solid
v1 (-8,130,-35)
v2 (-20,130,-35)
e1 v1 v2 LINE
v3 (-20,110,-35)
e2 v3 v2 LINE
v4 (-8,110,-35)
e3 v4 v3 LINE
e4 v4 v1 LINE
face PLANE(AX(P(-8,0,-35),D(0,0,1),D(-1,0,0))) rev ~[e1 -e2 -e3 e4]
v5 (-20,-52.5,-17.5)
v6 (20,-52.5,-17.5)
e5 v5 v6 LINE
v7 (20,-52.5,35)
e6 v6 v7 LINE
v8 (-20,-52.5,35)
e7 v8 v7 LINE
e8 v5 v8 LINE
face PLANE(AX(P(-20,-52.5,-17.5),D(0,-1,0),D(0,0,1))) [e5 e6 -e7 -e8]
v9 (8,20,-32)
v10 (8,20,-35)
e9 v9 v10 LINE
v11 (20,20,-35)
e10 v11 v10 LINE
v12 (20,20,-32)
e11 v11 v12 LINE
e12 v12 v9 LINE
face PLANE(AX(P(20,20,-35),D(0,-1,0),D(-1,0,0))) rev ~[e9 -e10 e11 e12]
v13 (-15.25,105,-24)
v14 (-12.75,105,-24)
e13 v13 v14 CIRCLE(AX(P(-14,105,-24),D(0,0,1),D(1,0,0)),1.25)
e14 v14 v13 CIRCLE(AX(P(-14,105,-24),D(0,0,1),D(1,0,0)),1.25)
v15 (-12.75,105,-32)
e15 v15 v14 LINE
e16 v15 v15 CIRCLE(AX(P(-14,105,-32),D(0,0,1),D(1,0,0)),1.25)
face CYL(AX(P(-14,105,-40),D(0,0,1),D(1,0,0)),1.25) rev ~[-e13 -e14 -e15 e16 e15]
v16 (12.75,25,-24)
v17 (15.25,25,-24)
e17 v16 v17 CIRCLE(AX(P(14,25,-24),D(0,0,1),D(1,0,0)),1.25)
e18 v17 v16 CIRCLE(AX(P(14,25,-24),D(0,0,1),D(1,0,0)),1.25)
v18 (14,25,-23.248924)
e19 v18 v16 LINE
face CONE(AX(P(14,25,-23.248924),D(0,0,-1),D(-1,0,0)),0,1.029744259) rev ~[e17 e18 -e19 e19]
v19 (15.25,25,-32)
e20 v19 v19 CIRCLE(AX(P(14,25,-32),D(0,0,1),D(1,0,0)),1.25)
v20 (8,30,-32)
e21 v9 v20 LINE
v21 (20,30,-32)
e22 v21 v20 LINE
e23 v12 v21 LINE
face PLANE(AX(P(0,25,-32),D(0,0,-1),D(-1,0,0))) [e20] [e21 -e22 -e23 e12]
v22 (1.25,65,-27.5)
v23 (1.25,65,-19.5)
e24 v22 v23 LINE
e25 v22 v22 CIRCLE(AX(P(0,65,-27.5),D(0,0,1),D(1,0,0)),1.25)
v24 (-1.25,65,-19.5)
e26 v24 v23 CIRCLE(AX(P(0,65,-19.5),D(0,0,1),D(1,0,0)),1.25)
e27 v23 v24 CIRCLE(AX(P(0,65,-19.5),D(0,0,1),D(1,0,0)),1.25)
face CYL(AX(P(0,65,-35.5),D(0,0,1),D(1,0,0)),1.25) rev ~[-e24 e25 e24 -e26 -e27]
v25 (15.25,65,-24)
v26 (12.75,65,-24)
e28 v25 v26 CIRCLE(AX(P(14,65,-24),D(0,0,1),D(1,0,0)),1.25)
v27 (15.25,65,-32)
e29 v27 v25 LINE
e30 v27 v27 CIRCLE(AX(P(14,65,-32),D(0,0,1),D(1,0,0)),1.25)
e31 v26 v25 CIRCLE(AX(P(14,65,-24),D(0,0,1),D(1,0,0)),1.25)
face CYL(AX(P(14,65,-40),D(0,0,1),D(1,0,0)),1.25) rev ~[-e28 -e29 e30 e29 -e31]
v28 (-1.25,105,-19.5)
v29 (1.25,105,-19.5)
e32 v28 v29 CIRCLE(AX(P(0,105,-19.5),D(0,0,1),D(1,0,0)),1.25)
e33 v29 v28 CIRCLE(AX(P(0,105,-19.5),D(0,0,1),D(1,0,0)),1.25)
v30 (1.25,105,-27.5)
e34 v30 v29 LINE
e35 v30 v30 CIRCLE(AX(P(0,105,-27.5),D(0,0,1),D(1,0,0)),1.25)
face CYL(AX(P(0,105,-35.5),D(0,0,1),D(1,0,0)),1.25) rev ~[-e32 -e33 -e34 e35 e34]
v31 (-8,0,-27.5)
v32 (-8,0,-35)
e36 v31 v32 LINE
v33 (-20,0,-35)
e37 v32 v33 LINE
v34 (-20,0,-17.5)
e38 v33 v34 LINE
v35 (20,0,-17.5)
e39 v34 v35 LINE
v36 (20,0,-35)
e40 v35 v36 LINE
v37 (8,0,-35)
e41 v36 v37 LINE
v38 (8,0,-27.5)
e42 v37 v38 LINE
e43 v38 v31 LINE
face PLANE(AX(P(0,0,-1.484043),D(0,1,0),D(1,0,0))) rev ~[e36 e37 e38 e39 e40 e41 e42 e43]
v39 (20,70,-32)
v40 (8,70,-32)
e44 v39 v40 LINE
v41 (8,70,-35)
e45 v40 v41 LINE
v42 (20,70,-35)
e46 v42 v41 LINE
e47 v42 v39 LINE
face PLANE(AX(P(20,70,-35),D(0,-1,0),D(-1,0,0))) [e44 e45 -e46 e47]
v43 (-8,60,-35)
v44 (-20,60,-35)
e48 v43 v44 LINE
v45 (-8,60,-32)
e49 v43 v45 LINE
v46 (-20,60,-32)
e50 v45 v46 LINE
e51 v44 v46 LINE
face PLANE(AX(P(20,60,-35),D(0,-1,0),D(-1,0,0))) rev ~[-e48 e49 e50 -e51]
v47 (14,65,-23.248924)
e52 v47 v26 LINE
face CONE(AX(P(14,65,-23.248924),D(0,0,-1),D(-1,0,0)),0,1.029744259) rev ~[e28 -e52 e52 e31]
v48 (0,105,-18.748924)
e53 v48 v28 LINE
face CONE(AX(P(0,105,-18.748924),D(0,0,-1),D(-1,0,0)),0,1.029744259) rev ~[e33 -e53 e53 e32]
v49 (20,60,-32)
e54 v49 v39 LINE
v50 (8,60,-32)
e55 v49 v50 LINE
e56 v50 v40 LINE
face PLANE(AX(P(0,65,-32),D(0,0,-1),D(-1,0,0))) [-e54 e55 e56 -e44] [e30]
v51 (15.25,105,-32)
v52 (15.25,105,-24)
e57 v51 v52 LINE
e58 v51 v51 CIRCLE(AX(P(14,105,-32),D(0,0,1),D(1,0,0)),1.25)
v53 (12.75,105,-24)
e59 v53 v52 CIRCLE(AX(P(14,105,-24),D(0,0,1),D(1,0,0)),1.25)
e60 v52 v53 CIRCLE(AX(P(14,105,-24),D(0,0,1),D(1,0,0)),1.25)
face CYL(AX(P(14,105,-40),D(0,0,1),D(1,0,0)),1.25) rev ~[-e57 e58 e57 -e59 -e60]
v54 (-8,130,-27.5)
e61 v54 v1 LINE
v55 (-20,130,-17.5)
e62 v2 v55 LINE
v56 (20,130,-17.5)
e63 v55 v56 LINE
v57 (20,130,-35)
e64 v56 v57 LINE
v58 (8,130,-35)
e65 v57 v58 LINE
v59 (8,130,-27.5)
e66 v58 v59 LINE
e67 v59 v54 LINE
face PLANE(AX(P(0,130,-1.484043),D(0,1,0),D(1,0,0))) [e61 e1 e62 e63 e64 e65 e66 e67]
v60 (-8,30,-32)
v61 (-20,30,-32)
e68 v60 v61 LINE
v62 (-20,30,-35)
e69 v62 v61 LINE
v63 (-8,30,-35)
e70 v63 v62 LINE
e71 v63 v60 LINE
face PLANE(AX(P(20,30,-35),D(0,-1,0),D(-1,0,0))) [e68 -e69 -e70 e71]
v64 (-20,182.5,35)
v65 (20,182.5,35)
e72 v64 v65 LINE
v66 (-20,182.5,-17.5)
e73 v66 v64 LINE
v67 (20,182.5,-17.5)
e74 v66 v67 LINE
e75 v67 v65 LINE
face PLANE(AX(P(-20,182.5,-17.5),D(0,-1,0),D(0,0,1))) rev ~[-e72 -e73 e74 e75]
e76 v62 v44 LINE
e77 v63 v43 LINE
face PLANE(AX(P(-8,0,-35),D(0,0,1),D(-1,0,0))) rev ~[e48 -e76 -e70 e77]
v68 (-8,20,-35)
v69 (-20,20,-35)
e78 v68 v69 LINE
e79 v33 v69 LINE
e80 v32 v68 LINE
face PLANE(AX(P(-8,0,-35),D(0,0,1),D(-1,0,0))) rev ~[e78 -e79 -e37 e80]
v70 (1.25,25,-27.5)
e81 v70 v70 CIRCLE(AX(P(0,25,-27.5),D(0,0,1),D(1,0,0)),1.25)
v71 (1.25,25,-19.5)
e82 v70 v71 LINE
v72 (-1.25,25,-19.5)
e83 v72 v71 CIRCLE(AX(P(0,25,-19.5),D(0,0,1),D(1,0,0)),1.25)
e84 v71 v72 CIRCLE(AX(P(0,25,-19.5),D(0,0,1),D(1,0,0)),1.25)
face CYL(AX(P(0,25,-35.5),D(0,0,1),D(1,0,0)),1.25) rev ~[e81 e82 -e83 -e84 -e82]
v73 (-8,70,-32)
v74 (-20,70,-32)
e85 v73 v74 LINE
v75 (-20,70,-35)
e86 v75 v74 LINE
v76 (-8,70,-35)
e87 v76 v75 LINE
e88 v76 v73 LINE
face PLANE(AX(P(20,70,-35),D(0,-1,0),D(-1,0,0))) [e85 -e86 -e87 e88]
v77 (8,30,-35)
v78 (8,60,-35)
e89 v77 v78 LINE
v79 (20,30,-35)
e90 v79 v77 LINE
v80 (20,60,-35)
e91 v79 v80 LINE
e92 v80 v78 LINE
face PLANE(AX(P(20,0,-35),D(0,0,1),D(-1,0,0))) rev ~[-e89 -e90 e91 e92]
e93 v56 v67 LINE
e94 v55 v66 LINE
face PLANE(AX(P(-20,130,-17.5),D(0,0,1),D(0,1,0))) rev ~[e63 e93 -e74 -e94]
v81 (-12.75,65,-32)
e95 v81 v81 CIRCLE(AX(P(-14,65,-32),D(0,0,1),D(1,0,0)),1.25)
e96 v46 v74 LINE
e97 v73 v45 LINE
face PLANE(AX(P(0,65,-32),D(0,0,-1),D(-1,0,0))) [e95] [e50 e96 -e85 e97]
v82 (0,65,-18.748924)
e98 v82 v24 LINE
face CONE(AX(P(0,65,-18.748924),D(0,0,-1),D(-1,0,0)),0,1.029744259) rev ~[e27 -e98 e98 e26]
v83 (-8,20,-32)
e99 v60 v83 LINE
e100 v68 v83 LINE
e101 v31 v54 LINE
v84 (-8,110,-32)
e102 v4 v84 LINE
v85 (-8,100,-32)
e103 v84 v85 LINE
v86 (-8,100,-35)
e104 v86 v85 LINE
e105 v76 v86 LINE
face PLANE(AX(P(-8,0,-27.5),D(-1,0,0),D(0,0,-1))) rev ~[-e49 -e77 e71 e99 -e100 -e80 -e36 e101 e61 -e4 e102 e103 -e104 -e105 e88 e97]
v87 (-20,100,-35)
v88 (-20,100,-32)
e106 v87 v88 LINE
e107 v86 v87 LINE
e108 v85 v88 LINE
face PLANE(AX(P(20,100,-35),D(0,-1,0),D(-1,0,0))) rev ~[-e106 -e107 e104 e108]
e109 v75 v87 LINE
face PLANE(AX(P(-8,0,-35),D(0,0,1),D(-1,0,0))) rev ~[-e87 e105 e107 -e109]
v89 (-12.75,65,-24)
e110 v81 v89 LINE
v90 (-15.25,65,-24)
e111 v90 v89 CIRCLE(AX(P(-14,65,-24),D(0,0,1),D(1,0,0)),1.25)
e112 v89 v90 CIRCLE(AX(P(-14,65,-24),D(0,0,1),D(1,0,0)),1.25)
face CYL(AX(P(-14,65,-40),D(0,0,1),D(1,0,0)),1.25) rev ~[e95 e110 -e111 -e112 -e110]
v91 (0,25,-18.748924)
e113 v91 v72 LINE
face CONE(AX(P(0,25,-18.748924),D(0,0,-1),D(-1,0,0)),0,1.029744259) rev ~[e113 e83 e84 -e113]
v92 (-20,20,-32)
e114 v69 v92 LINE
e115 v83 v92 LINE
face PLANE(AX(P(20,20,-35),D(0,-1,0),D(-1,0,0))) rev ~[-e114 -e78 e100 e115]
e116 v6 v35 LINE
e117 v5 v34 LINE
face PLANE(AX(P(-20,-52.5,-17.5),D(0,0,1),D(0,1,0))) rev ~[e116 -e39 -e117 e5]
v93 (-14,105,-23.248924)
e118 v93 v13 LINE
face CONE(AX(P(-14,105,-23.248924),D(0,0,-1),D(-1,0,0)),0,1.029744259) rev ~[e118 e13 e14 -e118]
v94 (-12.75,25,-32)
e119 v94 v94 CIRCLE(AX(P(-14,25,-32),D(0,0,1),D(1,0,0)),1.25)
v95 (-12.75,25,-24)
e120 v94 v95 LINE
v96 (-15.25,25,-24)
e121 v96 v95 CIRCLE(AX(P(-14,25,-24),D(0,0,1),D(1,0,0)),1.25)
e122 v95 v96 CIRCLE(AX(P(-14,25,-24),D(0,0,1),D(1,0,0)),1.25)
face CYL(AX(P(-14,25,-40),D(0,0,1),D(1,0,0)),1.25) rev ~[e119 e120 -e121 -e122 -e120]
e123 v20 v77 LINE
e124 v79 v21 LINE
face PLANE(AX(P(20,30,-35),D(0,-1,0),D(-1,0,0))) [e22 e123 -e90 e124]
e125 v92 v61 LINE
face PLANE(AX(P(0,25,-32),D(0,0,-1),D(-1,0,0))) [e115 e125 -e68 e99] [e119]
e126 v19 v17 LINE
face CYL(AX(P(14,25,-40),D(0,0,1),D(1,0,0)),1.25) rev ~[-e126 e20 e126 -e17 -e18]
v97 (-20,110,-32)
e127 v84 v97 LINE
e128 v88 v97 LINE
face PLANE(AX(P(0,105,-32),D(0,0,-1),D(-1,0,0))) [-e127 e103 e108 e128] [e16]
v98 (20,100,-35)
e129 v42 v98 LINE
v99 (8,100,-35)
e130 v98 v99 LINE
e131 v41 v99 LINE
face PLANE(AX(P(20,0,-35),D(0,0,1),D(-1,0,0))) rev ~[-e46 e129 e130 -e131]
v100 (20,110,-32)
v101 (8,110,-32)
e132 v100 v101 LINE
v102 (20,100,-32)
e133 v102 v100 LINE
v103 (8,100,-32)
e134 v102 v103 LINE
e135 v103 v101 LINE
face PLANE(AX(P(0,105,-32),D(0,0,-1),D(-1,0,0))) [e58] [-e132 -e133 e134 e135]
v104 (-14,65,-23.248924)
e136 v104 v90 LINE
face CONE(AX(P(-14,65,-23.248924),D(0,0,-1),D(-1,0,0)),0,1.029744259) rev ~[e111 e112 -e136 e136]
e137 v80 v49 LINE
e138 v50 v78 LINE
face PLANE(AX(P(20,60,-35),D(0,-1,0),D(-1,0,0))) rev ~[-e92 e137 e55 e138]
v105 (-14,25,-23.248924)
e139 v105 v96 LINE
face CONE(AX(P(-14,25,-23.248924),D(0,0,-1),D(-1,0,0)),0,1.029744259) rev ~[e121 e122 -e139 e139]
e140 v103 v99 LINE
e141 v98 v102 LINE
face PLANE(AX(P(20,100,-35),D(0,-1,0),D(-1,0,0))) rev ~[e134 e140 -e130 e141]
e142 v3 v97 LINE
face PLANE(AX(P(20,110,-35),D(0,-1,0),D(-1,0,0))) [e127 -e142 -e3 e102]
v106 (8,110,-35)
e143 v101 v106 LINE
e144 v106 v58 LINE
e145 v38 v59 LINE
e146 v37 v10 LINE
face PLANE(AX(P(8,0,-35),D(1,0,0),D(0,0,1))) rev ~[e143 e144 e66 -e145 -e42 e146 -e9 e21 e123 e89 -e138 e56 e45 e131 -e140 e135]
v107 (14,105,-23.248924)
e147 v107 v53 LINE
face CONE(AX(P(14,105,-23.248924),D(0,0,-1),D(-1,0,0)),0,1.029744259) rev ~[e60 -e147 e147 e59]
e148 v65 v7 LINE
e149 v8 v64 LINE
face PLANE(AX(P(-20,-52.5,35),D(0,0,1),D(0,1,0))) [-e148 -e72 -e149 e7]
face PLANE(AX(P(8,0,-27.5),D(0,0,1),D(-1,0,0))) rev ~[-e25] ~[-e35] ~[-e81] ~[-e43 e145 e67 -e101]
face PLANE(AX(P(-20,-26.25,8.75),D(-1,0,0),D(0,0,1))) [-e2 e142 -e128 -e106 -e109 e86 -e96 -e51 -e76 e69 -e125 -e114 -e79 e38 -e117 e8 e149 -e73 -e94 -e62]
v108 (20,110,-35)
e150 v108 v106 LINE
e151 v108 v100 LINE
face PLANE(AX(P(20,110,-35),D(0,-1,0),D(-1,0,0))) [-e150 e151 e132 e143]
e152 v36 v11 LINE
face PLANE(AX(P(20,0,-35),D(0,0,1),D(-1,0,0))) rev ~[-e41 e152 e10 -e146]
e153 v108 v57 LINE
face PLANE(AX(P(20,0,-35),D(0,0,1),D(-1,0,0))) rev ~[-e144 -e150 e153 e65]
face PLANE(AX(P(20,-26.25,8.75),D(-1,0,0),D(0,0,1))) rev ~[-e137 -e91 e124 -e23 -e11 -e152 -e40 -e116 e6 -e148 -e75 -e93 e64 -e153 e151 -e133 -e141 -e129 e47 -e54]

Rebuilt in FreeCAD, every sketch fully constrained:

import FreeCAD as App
import Part
import Sketcher

V = App.Vector

doc = App.newDocument("Part")
body = doc.addObject("PartDesign::Body", "Body")

sketch1 = body.newObject("Sketcher::SketchObject", "Sketch")
sketch1.AttachmentSupport = (doc.getObject("XZ_Plane"), [""])
sketch1.MapMode = "FlatFace"
sketch1.addGeometry([
    Part.LineSegment(V(-20, -35, 0), V(-20, 35, 0)),
    Part.LineSegment(V(-20, 35, 0), V(20, 35, 0)),
    Part.LineSegment(V(20, 35, 0), V(20, -35, 0)),
    Part.LineSegment(V(20, -35, 0), V(8, -35, 0)),
    Part.LineSegment(V(8, -35, 0), V(8, -28, 0)),
    Part.LineSegment(V(8, -28, 0), V(-8, -28, 0)),
    Part.LineSegment(V(-8, -28, 0), V(-8, -35, 0)),
    Part.LineSegment(V(-8, -35, 0), V(-20, -35, 0)),
], False)
sketch1.addConstraint([
    Sketcher.Constraint("Coincident", 0, 2, 1, 1),
    Sketcher.Constraint("Coincident", 1, 2, 2, 1),
    Sketcher.Constraint("Coincident", 2, 2, 3, 1),
    Sketcher.Constraint("Coincident", 3, 2, 4, 1),
    Sketcher.Constraint("Coincident", 4, 2, 5, 1),
    Sketcher.Constraint("Coincident", 5, 2, 6, 1),
    Sketcher.Constraint("Coincident", 6, 2, 7, 1),
    Sketcher.Constraint("Coincident", 7, 2, 0, 1),
    Sketcher.Constraint("Vertical", 0),
    Sketcher.Constraint("Horizontal", 1),
    Sketcher.Constraint("Vertical", 2),
    Sketcher.Constraint("Horizontal", 3),
    Sketcher.Constraint("Vertical", 4),
    Sketcher.Constraint("Horizontal", 5),
    Sketcher.Constraint("Vertical", 6),
    Sketcher.Constraint("Horizontal", 7),
    Sketcher.Constraint("Symmetric", 0, 2, 2, 2, -1, 1),
    Sketcher.Constraint("Symmetric", 3, 2, 6, 2, -2),
    Sketcher.Constraint("DistanceX", 1, 1, 1, 2, 40.0),
    Sketcher.Constraint("DistanceX", 3, 2, 3, 1, 12.0),
    Sketcher.Constraint("DistanceY", 0, 1, 0, 2, 70.0),
    Sketcher.Constraint("DistanceY", 4, 1, 4, 2, 7.5),
])
pad1 = body.newObject("PartDesign::Pad", "Pad")
pad1.Profile = sketch1
pad1.Length = 130
pad1.Reversed = True

sketch2 = body.newObject("Sketcher::SketchObject", "Sketch001")
sketch2.AttachmentSupport = (doc.getObject("XY_Plane"), [""])
sketch2.MapMode = "FlatFace"
sketch2.AttachmentOffset = App.Placement(V(0, 0, -35), App.Rotation())
sketch2.addGeometry([
    Part.LineSegment(V(20, 30, 0), V(20, 20, 0)),
    Part.LineSegment(V(20, 20, 0), V(-20, 20, 0)),
    Part.LineSegment(V(-20, 20, 0), V(-20, 30, 0)),
    Part.LineSegment(V(-20, 30, 0), V(20, 30, 0)),
    Part.LineSegment(V(20, 70, 0), V(20, 60, 0)),
    Part.LineSegment(V(20, 60, 0), V(-20, 60, 0)),
    Part.LineSegment(V(-20, 60, 0), V(-20, 70, 0)),
    Part.LineSegment(V(-20, 70, 0), V(20, 70, 0)),
    Part.LineSegment(V(20, 110, 0), V(20, 100, 0)),
    Part.LineSegment(V(20, 100, 0), V(-20, 100, 0)),
    Part.LineSegment(V(-20, 100, 0), V(-20, 110, 0)),
    Part.LineSegment(V(-20, 110, 0), V(20, 110, 0)),
], False)
sketch2.addConstraint([
    Sketcher.Constraint("Coincident", 0, 2, 1, 1),
    Sketcher.Constraint("Coincident", 1, 2, 2, 1),
    Sketcher.Constraint("Coincident", 2, 2, 3, 1),
    Sketcher.Constraint("Coincident", 3, 2, 0, 1),
    Sketcher.Constraint("Coincident", 4, 2, 5, 1),
    Sketcher.Constraint("Coincident", 5, 2, 6, 1),
    Sketcher.Constraint("Coincident", 6, 2, 7, 1),
    Sketcher.Constraint("Coincident", 7, 2, 4, 1),
    Sketcher.Constraint("Coincident", 8, 2, 9, 1),
    Sketcher.Constraint("Coincident", 9, 2, 10, 1),
    Sketcher.Constraint("Coincident", 10, 2, 11, 1),
    Sketcher.Constraint("Coincident", 11, 2, 8, 1),
    Sketcher.Constraint("Vertical", 0),
    Sketcher.Constraint("Horizontal", 1),
    Sketcher.Constraint("Vertical", 2),
    Sketcher.Constraint("Horizontal", 3),
    Sketcher.Constraint("Vertical", 4),
    Sketcher.Constraint("Horizontal", 5),
    Sketcher.Constraint("Vertical", 6),
    Sketcher.Constraint("Horizontal", 7),
    Sketcher.Constraint("Vertical", 8),
    Sketcher.Constraint("Horizontal", 9),
    Sketcher.Constraint("Vertical", 10),
    Sketcher.Constraint("Horizontal", 11),
    Sketcher.Constraint("Vertical", 3, 2, 4, 2),
    Sketcher.Constraint("Vertical", 2, 2, 5, 2),
    Sketcher.Constraint("Vertical", 7, 2, 8, 2),
    Sketcher.Constraint("Vertical", 6, 2, 9, 2),
    Sketcher.Constraint("Equal", 2, 4),
    Sketcher.Constraint("Equal", 6, 8),
    Sketcher.Constraint("DistanceX", 1, 2, 1, 1, 40.0),
    Sketcher.Constraint("DistanceY", 0, 2, 0, 1, 10.0),
    Sketcher.Constraint("DistanceX", -1, 1, 0, 2, 20.0),
    Sketcher.Constraint("DistanceY", -1, 1, 0, 2, 20.0),
    Sketcher.Constraint("DistanceY", -1, 1, 4, 2, 60.0),
    Sketcher.Constraint("DistanceY", -1, 1, 8, 2, 100.0),
])
pocket1 = body.newObject("PartDesign::Pocket", "Pocket")
pocket1.Profile = sketch2
pocket1.Length = 3
pocket1.Reversed = True

sketch3 = body.newObject("Sketcher::SketchObject", "Sketch002")
sketch3.AttachmentSupport = (doc.getObject("XY_Plane"), [""])
sketch3.MapMode = "FlatFace"
sketch3.AttachmentOffset = App.Placement(V(0, 0, -32), App.Rotation())
sketch3.addGeometry([
    Part.Circle(V(-14, 25, 0), V(0, 0, 1), 1.2),
    Part.Circle(V(14, 25, 0), V(0, 0, 1), 1.2),
    Part.Circle(V(-14, 105, 0), V(0, 0, 1), 1.2),
    Part.Circle(V(14, 105, 0), V(0, 0, 1), 1.2),
    Part.Circle(V(-14, 65, 0), V(0, 0, 1), 1.2),
    Part.Circle(V(14, 65, 0), V(0, 0, 1), 1.2),
], False)
sketch3.addConstraint([
    Sketcher.Constraint("Equal", 0, 1),
    Sketcher.Constraint("Equal", 1, 2),
    Sketcher.Constraint("Equal", 2, 3),
    Sketcher.Constraint("Equal", 3, 4),
    Sketcher.Constraint("Equal", 4, 5),
    Sketcher.Constraint("Symmetric", 0, 3, 1, 3, -2),
    Sketcher.Constraint("Symmetric", 2, 3, 3, 3, -2),
    Sketcher.Constraint("Symmetric", 4, 3, 5, 3, -2),
    Sketcher.Constraint("Vertical", 0, 3, 2, 3),
    Sketcher.Constraint("Vertical", 2, 3, 4, 3),
    Sketcher.Constraint("Diameter", 0, 2.5),
    Sketcher.Constraint("DistanceX", 0, 3, -1, 1, 14.0),
    Sketcher.Constraint("DistanceY", -1, 1, 0, 3, 25.0),
    Sketcher.Constraint("DistanceY", -1, 1, 2, 3, 105.0),
    Sketcher.Constraint("DistanceY", -1, 1, 4, 3, 65.0),
])
doc.recompute()
hole = body.newObject("PartDesign::Hole", "Hole")
hole.Profile = sketch3
hole.ThreadType = "None"
hole.Diameter = 2.5
hole.DepthType = "Dimension"
hole.Depth = 8
hole.DrillPoint = "Angled"
hole.DrillPointAngle = 118
hole.Reversed = True

sketch4 = body.newObject("Sketcher::SketchObject", "Sketch003")
sketch4.AttachmentSupport = (doc.getObject("XY_Plane"), [""])
sketch4.MapMode = "FlatFace"
sketch4.AttachmentOffset = App.Placement(V(0, 0, -27.5), App.Rotation())
sketch4.addGeometry([
    Part.Circle(V(0, 25, 0), V(0, 0, 1), 1.2),
    Part.Circle(V(0, 65, 0), V(0, 0, 1), 1.2),
    Part.Circle(V(0, 105, 0), V(0, 0, 1), 1.2),
], False)
sketch4.addConstraint([
    Sketcher.Constraint("Equal", 0, 1),
    Sketcher.Constraint("Equal", 1, 2),
    Sketcher.Constraint("PointOnObject", 0, 3, -2),
    Sketcher.Constraint("PointOnObject", 1, 3, -2),
    Sketcher.Constraint("PointOnObject", 2, 3, -2),
    Sketcher.Constraint("Diameter", 0, 2.5),
    Sketcher.Constraint("DistanceY", -1, 1, 0, 3, 25.0),
    Sketcher.Constraint("DistanceY", -1, 1, 1, 3, 65.0),
    Sketcher.Constraint("DistanceY", -1, 1, 2, 3, 105.0),
])
doc.recompute()
hole2 = body.newObject("PartDesign::Hole", "Hole001")
hole2.Profile = sketch4
hole2.ThreadType = "None"
hole2.Diameter = 2.5
hole2.DepthType = "Dimension"
hole2.Depth = 8
hole2.DrillPoint = "Angled"
hole2.DrillPointAngle = 118
hole2.Reversed = True

sketch5 = body.newObject("Sketcher::SketchObject", "Sketch004")
sketch5.AttachmentSupport = (doc.getObject("YZ_Plane"), [""])
sketch5.MapMode = "FlatFace"
sketch5.AttachmentOffset = App.Placement(V(0, 0, -20), App.Rotation())
sketch5.addGeometry([
    Part.LineSegment(V(0, -18, 0), V(-52, -18, 0)),
    Part.LineSegment(V(-52, -18, 0), V(-52, 35, 0)),
    Part.LineSegment(V(-52, 35, 0), V(0, 35, 0)),
    Part.LineSegment(V(0, 35, 0), V(0, -18, 0)),
    Part.LineSegment(V(182, -18, 0), V(130, -18, 0)),
    Part.LineSegment(V(130, -18, 0), V(130, 35, 0)),
    Part.LineSegment(V(130, 35, 0), V(182, 35, 0)),
    Part.LineSegment(V(182, 35, 0), V(182, -18, 0)),
], False)
sketch5.addConstraint([
    Sketcher.Constraint("Coincident", 0, 2, 1, 1),
    Sketcher.Constraint("Coincident", 1, 2, 2, 1),
    Sketcher.Constraint("Coincident", 2, 2, 3, 1),
    Sketcher.Constraint("Coincident", 3, 2, 0, 1),
    Sketcher.Constraint("Coincident", 4, 2, 5, 1),
    Sketcher.Constraint("Coincident", 5, 2, 6, 1),
    Sketcher.Constraint("Coincident", 6, 2, 7, 1),
    Sketcher.Constraint("Coincident", 7, 2, 4, 1),
    Sketcher.Constraint("Horizontal", 0),
    Sketcher.Constraint("Vertical", 1),
    Sketcher.Constraint("Horizontal", 2),
    Sketcher.Constraint("Vertical", 3),
    Sketcher.Constraint("Horizontal", 4),
    Sketcher.Constraint("Vertical", 5),
    Sketcher.Constraint("Horizontal", 6),
    Sketcher.Constraint("Vertical", 7),
    Sketcher.Constraint("PointOnObject", 2, 2, -2),
    Sketcher.Constraint("Horizontal", 3, 2, 4, 2),
    Sketcher.Constraint("Horizontal", 2, 2, 5, 2),
    Sketcher.Constraint("Equal", 2, 4),
    Sketcher.Constraint("Equal", 6, 1),
    Sketcher.Constraint("DistanceX", 0, 2, 0, 1, 52.5),
    Sketcher.Constraint("DistanceY", -1, 1, 1, 2, 35.0),
    Sketcher.Constraint("DistanceX", -1, 1, 4, 2, 130.0),
])
pad2 = body.newObject("PartDesign::Pad", "Pad001")
pad2.Profile = sketch5
pad2.Length = 40

doc.recompute()
